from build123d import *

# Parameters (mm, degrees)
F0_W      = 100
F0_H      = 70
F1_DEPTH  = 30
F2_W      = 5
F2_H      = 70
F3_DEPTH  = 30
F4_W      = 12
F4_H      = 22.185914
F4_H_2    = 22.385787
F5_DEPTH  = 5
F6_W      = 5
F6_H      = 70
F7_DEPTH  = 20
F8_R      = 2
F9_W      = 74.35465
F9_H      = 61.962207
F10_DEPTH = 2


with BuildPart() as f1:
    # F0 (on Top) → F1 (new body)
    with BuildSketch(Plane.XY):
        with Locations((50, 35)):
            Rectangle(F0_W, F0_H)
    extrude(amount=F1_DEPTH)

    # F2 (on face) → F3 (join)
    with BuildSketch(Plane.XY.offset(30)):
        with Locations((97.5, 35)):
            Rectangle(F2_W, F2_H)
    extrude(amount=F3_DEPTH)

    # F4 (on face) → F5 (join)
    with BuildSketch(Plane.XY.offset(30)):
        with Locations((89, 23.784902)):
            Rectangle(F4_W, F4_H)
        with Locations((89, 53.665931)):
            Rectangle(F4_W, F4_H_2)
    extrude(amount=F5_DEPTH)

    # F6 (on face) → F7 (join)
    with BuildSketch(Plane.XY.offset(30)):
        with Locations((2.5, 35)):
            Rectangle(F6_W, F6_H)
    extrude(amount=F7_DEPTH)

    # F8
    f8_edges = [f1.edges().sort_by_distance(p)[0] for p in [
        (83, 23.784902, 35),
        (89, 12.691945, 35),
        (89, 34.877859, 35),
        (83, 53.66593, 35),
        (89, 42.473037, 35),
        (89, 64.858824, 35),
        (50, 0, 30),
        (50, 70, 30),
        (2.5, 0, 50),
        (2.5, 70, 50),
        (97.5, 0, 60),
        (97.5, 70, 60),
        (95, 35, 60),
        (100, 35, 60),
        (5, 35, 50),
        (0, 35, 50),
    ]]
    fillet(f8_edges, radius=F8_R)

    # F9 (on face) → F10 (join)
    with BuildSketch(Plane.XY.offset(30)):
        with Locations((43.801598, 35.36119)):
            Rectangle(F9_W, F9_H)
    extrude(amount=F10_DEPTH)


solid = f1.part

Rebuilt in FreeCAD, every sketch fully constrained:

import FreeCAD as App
import Part
import Sketcher

V = App.Vector


def edges_at(feature, points):
    """Names of the edges that pass closest to the given points."""
    edges = feature.Shape.Edges
    near = lambda p: min(range(len(edges)), key=lambda i: edges[i].distToShape(Part.Vertex(*p))[0])
    return sorted({f"Edge{near(p) + 1}" for p in points})

doc = App.newDocument("Part")
body = doc.addObject("PartDesign::Body", "Body")

# Sketch on XY plane
sketch1 = body.newObject("Sketcher::SketchObject", "Sketch")
sketch1.AttachmentSupport = (doc.getObject("XY_Plane"), [""])
sketch1.MapMode = "FlatFace"
sketch1.addGeometry(Part.LineSegment(V(0, 70, 0), V(0, 0, 0)), False)
sketch1.addGeometry(Part.LineSegment(V(0, 0, 0), V(100, 0, 0)), False)
sketch1.addGeometry(Part.LineSegment(V(100, 0, 0), V(100, 70, 0)), False)
sketch1.addGeometry(Part.LineSegment(V(100, 70, 0), V(0, 70, 0)), False)
sketch1.addConstraint(Sketcher.Constraint("Coincident", 0, 2, 1, 1))
sketch1.addConstraint(Sketcher.Constraint("Coincident", 1, 2, 2, 1))
sketch1.addConstraint(Sketcher.Constraint("Coincident", 2, 2, 3, 1))
sketch1.addConstraint(Sketcher.Constraint("Coincident", 3, 2, 0, 1))
sketch1.addConstraint(Sketcher.Constraint("Vertical", 0))
sketch1.addConstraint(Sketcher.Constraint("Horizontal", 1))
sketch1.addConstraint(Sketcher.Constraint("Vertical", 2))
sketch1.addConstraint(Sketcher.Constraint("Horizontal", 3))
sketch1.addConstraint(Sketcher.Constraint("Coincident", 0, 2, -1, 1))
sketch1.addConstraint(Sketcher.Constraint("DistanceX", 1, 1, 1, 2, 100.0))
sketch1.addConstraint(Sketcher.Constraint("DistanceY", 0, 2, 0, 1, 70.0))
pad1 = body.newObject("PartDesign::Pad", "Pad")
pad1.Profile = sketch1
pad1.Length = 30

# Sketch on XY plane
sketch2 = body.newObject("Sketcher::SketchObject", "Sketch001")
sketch2.AttachmentSupport = (doc.getObject("XY_Plane"), [""])
sketch2.MapMode = "FlatFace"
sketch2.AttachmentOffset = App.Placement(V(0, 0, 30), App.Rotation())
sketch2.addGeometry(Part.LineSegment(V(95, 70, 0), V(95, 0, 0)), False)
sketch2.addGeometry(Part.LineSegment(V(95, 0, 0), V(100, 0, 0)), False)
sketch2.addGeometry(Part.LineSegment(V(100, 0, 0), V(100, 70, 0)), False)
sketch2.addGeometry(Part.LineSegment(V(100, 70, 0), V(95, 70, 0)), False)
sketch2.addConstraint(Sketcher.Constraint("Coincident", 0, 2, 1, 1))
sketch2.addConstraint(Sketcher.Constraint("Coincident", 1, 2, 2, 1))
sketch2.addConstraint(Sketcher.Constraint("Coincident", 2, 2, 3, 1))
sketch2.addConstraint(Sketcher.Constraint("Coincident", 3, 2, 0, 1))
sketch2.addConstraint(Sketcher.Constraint("Vertical", 0))
sketch2.addConstraint(Sketcher.Constraint("Horizontal", 1))
sketch2.addConstraint(Sketcher.Constraint("Vertical", 2))
sketch2.addConstraint(Sketcher.Constraint("Horizontal", 3))
sketch2.addConstraint(Sketcher.Constraint("PointOnObject", 0, 2, -1))
sketch2.addConstraint(Sketcher.Constraint("DistanceX", 1, 1, 1, 2, 5.0))
sketch2.addConstraint(Sketcher.Constraint("DistanceY", 0, 2, 0, 1, 70.0))
sketch2.addConstraint(Sketcher.Constraint("DistanceX", -1, 1, 0, 2, 95.0))
pad2 = body.newObject("PartDesign::Pad", "Pad001")
pad2.Profile = sketch2
pad2.Length = 30

# Sketch on XY plane
sketch3 = body.newObject("Sketcher::SketchObject", "Sketch002")
sketch3.AttachmentSupport = (doc.getObject("XY_Plane"), [""])
sketch3.MapMode = "FlatFace"
sketch3.AttachmentOffset = App.Placement(V(0, 0, 30), App.Rotation())
sketch3.addGeometry(Part.LineSegment(V(83, 34.877859, 0), V(83, 12.691945, 0)), False)
sketch3.addGeometry(Part.LineSegment(V(83, 12.691945, 0), V(95, 12.691945, 0)), False)
sketch3.addGeometry(Part.LineSegment(V(95, 12.691945, 0), V(95, 34.877859, 0)), False)
sketch3.addGeometry(Part.LineSegment(V(95, 34.877859, 0), V(83, 34.877859, 0)), False)
sketch3.addGeometry(Part.LineSegment(V(83, 64.858824, 0), V(83, 42.473037, 0)), False)
sketch3.addGeometry(Part.LineSegment(V(83, 42.473037, 0), V(95, 42.473037, 0)), False)
sketch3.addGeometry(Part.LineSegment(V(95, 42.473037, 0), V(95, 64.858824, 0)), False)
sketch3.addGeometry(Part.LineSegment(V(95, 64.858824, 0), V(83, 64.858824, 0)), False)
sketch3.addConstraint(Sketcher.Constraint("Coincident", 0, 2, 1, 1))
sketch3.addConstraint(Sketcher.Constraint("Coincident", 1, 2, 2, 1))
sketch3.addConstraint(Sketcher.Constraint("Coincident", 2, 2, 3, 1))
sketch3.addConstraint(Sketcher.Constraint("Coincident", 3, 2, 0, 1))
sketch3.addConstraint(Sketcher.Constraint("Coincident", 4, 2, 5, 1))
sketch3.addConstraint(Sketcher.Constraint("Coincident", 5, 2, 6, 1))
sketch3.addConstraint(Sketcher.Constraint("Coincident", 6, 2, 7, 1))
sketch3.addConstraint(Sketcher.Constraint("Coincident", 7, 2, 4, 1))
sketch3.addConstraint(Sketcher.Constraint("Vertical", 0))
sketch3.addConstraint(Sketcher.Constraint("Horizontal", 1))
sketch3.addConstraint(Sketcher.Constraint("Vertical", 2))
sketch3.addConstraint(Sketcher.Constraint("Horizontal", 3))
sketch3.addConstraint(Sketcher.Constraint("Vertical", 4))
sketch3.addConstraint(Sketcher.Constraint("Horizontal", 5))
sketch3.addConstraint(Sketcher.Constraint("Vertical", 6))
sketch3.addConstraint(Sketcher.Constraint("Horizontal", 7))
sketch3.addConstraint(Sketcher.Constraint("Vertical", 3, 2, 4, 2))
sketch3.addConstraint(Sketcher.Constraint("Vertical", 2, 2, 5, 2))
sketch3.addConstraint(Sketcher.Constraint("DistanceX", 1, 1, 1, 2, 12.0))
sketch3.addConstraint(Sketcher.Constraint("DistanceX", -1, 1, 0, 2, 83.0))
sketch3.addConstraint(Sketcher.Constraint("DistanceY", 0, 2, 0, 1, 22.185914))
sketch3.addConstraint(Sketcher.Constraint("DistanceY", 4, 2, 4, 1, 22.385787))
sketch3.addConstraint(Sketcher.Constraint("DistanceY", -1, 1, 2, 2, 34.877859))
sketch3.addConstraint(Sketcher.Constraint("DistanceY", 3, 2, 4, 2, 7.595178))
pad3 = body.newObject("PartDesign::Pad", "Pad002")
pad3.Profile = sketch3
pad3.Length = 5

# Sketch on XY plane
sketch4 = body.newObject("Sketcher::SketchObject", "Sketch003")
sketch4.AttachmentSupport = (doc.getObject("XY_Plane"), [""])
sketch4.MapMode = "FlatFace"
sketch4.AttachmentOffset = App.Placement(V(0, 0, 30), App.Rotation())
sketch4.addGeometry(Part.LineSegment(V(0, 70, 0), V(0, 0, 0)), False)
sketch4.addGeometry(Part.LineSegment(V(0, 0, 0), V(5, 0, 0)), False)
sketch4.addGeometry(Part.LineSegment(V(5, 0, 0), V(5, 70, 0)), False)
sketch4.addGeometry(Part.LineSegment(V(5, 70, 0), V(0, 70, 0)), False)
sketch4.addConstraint(Sketcher.Constraint("Coincident", 0, 2, 1, 1))
sketch4.addConstraint(Sketcher.Constraint("Coincident", 1, 2, 2, 1))
sketch4.addConstraint(Sketcher.Constraint("Coincident", 2, 2, 3, 1))
sketch4.addConstraint(Sketcher.Constraint("Coincident", 3, 2, 0, 1))
sketch4.addConstraint(Sketcher.Constraint("Vertical", 0))
sketch4.addConstraint(Sketcher.Constraint("Horizontal", 1))
sketch4.addConstraint(Sketcher.Constraint("Vertical", 2))
sketch4.addConstraint(Sketcher.Constraint("Horizontal", 3))
sketch4.addConstraint(Sketcher.Constraint("Coincident", 0, 2, -1, 1))
sketch4.addConstraint(Sketcher.Constraint("DistanceX", 1, 1, 1, 2, 5.0))
sketch4.addConstraint(Sketcher.Constraint("DistanceY", 0, 2, 0, 1, 70.0))
pad4 = body.newObject("PartDesign::Pad", "Pad003")
pad4.Profile = sketch4
pad4.Length = 20
doc.recompute()

fillet = body.newObject("PartDesign::Fillet", "Fillet")
fillet.Base = (pad4, edges_at(pad4, [
    (83, 23.785, 35),
    (89, 12.692, 35),
    (89, 34.878, 35),
    (83, 53.666, 35),
    (89, 42.473, 35),
    (89, 64.859, 35),
    (50, 0, 30),
    (50, 70, 30),
    (2.5, 0, 50),
    (2.5, 70, 50),
    (97.5, 0, 60),
    (97.5, 70, 60),
    (95, 35, 60),
    (100, 35, 60),
    (5, 35, 50),
    (0, 35, 50),
]))
fillet.Radius = 2

# Sketch on XY plane
sketch5 = body.newObject("Sketcher::SketchObject", "Sketch004")
sketch5.AttachmentSupport = (doc.getObject("XY_Plane"), [""])
sketch5.MapMode = "FlatFace"
sketch5.AttachmentOffset = App.Placement(V(0, 0, 30), App.Rotation())
sketch5.addGeometry(Part.LineSegment(V(6.624273, 66.342293, 0), V(6.624273, 4.380086, 0)), False)
sketch5.addGeometry(Part.LineSegment(V(6.624273, 4.380086, 0), V(80.978923, 4.380086, 0)), False)
sketch5.addGeometry(Part.LineSegment(V(80.978923, 4.380086, 0), V(80.978923, 66.342293, 0)), False)
sketch5.addGeometry(Part.LineSegment(V(80.978923, 66.342293, 0), V(6.624273, 66.342293, 0)), False)
sketch5.addConstraint(Sketcher.Constraint("Coincident", 0, 2, 1, 1))
sketch5.addConstraint(Sketcher.Constraint("Coincident", 1, 2, 2, 1))
sketch5.addConstraint(Sketcher.Constraint("Coincident", 2, 2, 3, 1))
sketch5.addConstraint(Sketcher.Constraint("Coincident", 3, 2, 0, 1))
sketch5.addConstraint(Sketcher.Constraint("Vertical", 0))
sketch5.addConstraint(Sketcher.Constraint("Horizontal", 1))
sketch5.addConstraint(Sketcher.Constraint("Vertical", 2))
sketch5.addConstraint(Sketcher.Constraint("Horizontal", 3))
sketch5.addConstraint(Sketcher.Constraint("DistanceX", 1, 1, 1, 2, 74.35465))
sketch5.addConstraint(Sketcher.Constraint("DistanceY", 0, 2, 0, 1, 61.962207))
sketch5.addConstraint(Sketcher.Constraint("DistanceX", -1, 1, 0, 2, 6.624273))
sketch5.addConstraint(Sketcher.Constraint("DistanceY", -1, 1, 0, 2, 4.380086))
pad5 = body.newObject("PartDesign::Pad", "Pad004")
pad5.Profile = sketch5
pad5.Length = 2

doc.recompute()
